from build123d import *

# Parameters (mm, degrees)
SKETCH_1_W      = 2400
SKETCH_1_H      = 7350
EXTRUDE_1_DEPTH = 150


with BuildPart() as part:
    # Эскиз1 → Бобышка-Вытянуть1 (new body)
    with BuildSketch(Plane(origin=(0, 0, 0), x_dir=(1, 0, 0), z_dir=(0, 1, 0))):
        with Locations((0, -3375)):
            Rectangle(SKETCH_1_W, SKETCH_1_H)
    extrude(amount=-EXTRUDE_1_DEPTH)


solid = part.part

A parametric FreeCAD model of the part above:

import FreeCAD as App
import Part
import Sketcher
from FreeCAD import Vector


def add_polygon(sketch, points):
    """Adds a closed chain of lines whose ends are joined by coincident constraints."""
    first, n = sketch.GeometryCount, len(points)
    for a, b in zip(points, points[1:] + points[:1]):
        sketch.addGeometry(Part.LineSegment(App.Vector(*a, 0), App.Vector(*b, 0)), False)
    for i in range(n):
        sketch.addConstraint(Sketcher.Constraint("Coincident", first + i, 2, first + (i + 1) % n, 1))

doc = App.newDocument("Part")
body = doc.addObject("PartDesign::Body", "Body")

# Sketch on XZ plane
sketch1 = body.newObject("Sketcher::SketchObject", "Sketch")
sketch1.AttachmentSupport = (doc.getObject("XZ_Plane"), [""])
sketch1.MapMode = "FlatFace"
add_polygon(sketch1, [(-1200, -300), (-1200, 7050), (1200, 7050), (1200, -300)])  # lines 0-3
sketch1.addConstraint([
    Sketcher.Constraint("Vertical", 0),
    Sketcher.Constraint("Horizontal", 1),
    Sketcher.Constraint("Vertical", 2),
    Sketcher.Constraint("Horizontal", 3),
    Sketcher.Constraint("DistanceX", 1, 1, 1, 2, 2400.0),
    Sketcher.Constraint("DistanceY", 0, 1, 0, 2, 7350.0),
    Sketcher.Constraint("DistanceX", 0, 2, -1, 1, 1200.0),
    Sketcher.Constraint("DistanceY", -1, 1, 0, 2, 7050.0),
])
pad1 = body.newObject("PartDesign::Pad", "Pad")
pad1.Profile = sketch1
pad1.Length = 150

doc.recompute()
